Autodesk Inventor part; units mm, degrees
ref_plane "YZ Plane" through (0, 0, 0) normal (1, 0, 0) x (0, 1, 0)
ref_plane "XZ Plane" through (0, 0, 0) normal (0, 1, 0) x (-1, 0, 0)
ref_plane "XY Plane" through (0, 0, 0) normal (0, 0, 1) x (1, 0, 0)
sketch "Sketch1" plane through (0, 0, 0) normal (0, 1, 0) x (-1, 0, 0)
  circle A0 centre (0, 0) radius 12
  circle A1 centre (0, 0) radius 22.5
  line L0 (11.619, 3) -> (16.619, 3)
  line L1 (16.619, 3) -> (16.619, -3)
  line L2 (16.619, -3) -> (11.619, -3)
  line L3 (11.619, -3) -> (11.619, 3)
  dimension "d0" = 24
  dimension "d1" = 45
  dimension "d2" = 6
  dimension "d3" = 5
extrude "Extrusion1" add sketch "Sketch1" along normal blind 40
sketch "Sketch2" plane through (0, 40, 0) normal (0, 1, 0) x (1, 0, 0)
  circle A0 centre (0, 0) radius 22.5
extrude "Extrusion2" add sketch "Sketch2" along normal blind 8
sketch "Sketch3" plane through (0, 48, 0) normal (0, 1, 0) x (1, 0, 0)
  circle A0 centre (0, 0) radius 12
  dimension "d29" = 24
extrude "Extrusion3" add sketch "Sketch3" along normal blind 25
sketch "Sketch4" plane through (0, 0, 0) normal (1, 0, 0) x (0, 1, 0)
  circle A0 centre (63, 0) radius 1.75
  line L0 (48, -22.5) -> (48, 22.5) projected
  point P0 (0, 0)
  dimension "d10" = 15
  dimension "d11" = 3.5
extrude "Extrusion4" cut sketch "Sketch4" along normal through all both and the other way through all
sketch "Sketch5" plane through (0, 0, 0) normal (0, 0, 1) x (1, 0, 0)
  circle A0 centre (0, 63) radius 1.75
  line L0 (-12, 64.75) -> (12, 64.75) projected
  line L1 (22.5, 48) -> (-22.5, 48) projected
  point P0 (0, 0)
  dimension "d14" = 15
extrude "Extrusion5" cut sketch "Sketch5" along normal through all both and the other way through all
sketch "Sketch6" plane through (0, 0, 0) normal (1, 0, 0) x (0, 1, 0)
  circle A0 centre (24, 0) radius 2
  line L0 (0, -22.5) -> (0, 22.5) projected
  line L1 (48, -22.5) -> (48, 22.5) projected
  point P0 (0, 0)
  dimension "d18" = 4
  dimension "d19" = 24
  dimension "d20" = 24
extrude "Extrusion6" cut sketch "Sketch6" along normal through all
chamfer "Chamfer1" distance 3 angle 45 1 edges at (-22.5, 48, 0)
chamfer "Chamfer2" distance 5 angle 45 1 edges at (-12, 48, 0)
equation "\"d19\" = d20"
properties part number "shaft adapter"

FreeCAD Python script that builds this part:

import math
import FreeCAD as App
import Part
import Sketcher

V = App.Vector
Q = App.Units.Quantity


def edges_at(feature, points):
    """Names of the edges that pass closest to the given points."""
    edges = feature.Shape.Edges
    near = lambda p: min(range(len(edges)), key=lambda i: edges[i].distToShape(Part.Vertex(*p))[0])
    return sorted({f"Edge{near(p) + 1}" for p in points})

doc = App.newDocument("Part")
params = doc.addObject("Spreadsheet::Sheet", "Params")
for row, (alias, value) in enumerate([
    ("sketch1_diameter", "45 mm"),
    ("sketch1_radius", "12 mm"),
    ("sketch1_width", "5 mm"),
    ("sketch1_height", "6 mm"),
    ("pad1_length", "40 mm"),
    ("sketch2_diameter", "45 mm"),
    ("pad2_length", "8 mm"),
    ("sketch3_diameter", "24 mm"),
    ("pad3_length", "25 mm"),
    ("sketch4_diameter", "3.5 mm"),
    ("sketch5_diameter", "3.5 mm"),
    ("sketch6_diameter", "4 mm"),
    ("chamfer_size", "3 mm"),
    ("chamfer2_size", "5 mm"),
], start=1):
    params.set(f"A{row}", alias)
    params.set(f"B{row}", "=" + value)
    params.setAlias(f"B{row}", alias)

body = doc.addObject("PartDesign::Body", "Body")

# Sketch on XZ plane
sketch1 = body.newObject("Sketcher::SketchObject", "Sketch")
sketch1.AttachmentSupport = (doc.getObject("XZ_Plane"), [""])
sketch1.MapMode = "FlatFace"
sketch1.addGeometry(Part.Circle(V(0, 0, 0), V(0, 0, 1), 22), False)
sketch1.addGeometry(Part.ArcOfCircle(Part.Circle(V(0, 0, 0), V(0, 0, 1), 12), math.radians(-166), math.radians(166)), False)
sketch1.addGeometry(Part.LineSegment(V(-12, 3, 0), V(-17, 3, 0)), False)
sketch1.addGeometry(Part.LineSegment(V(-17, 3, 0), V(-17, -3, 0)), False)
sketch1.addGeometry(Part.LineSegment(V(-17, -3, 0), V(-12, -3, 0)), False)
sketch1.addConstraint(Sketcher.Constraint("Coincident", 1, 2, 2, 1))
sketch1.addConstraint(Sketcher.Constraint("Coincident", 2, 2, 3, 1))
sketch1.addConstraint(Sketcher.Constraint("Coincident", 3, 2, 4, 1))
sketch1.addConstraint(Sketcher.Constraint("Coincident", 4, 2, 1, 1))
sketch1.addConstraint(Sketcher.Constraint("Horizontal", 2))
sketch1.addConstraint(Sketcher.Constraint("Vertical", 3))
sketch1.addConstraint(Sketcher.Constraint("Horizontal", 4))
sketch1.addConstraint(Sketcher.Constraint("Coincident", 0, 3, -1, 1))
sketch1.addConstraint(Sketcher.Constraint("Coincident", 1, 3, -1, 1))
sketch1.addConstraint(Sketcher.Constraint("Vertical", 1, 2, 4, 2))
sketch1.addConstraint(Sketcher.Constraint("Diameter", 0, Q("45 mm")))
sketch1.addConstraint(Sketcher.Constraint("Radius", 1, Q("12 mm")))
sketch1.addConstraint(Sketcher.Constraint("DistanceX", 2, 2, 2, 1, Q("5 mm")))
sketch1.addConstraint(Sketcher.Constraint("DistanceY", 3, 2, 3, 1, Q("6 mm")))
sketch1.setExpression("Constraints[10]", "Params.sketch1_diameter")
sketch1.setExpression("Constraints[11]", "Params.sketch1_radius")
sketch1.setExpression("Constraints[12]", "Params.sketch1_width")
sketch1.setExpression("Constraints[13]", "Params.sketch1_height")
pad1 = body.newObject("PartDesign::Pad", "Pad")
pad1.Profile = sketch1
pad1.setExpression("Length", "Params.pad1_length")
pad1.Reversed = True

# Sketch on XZ plane
sketch2 = body.newObject("Sketcher::SketchObject", "Sketch001")
sketch2.AttachmentSupport = (doc.getObject("XZ_Plane"), [""])
sketch2.MapMode = "FlatFace"
sketch2.AttachmentOffset = App.Placement(V(0, 0, -40), App.Rotation())
sketch2.addGeometry(Part.Circle(V(0, 0, 0), V(0, 0, 1), 22), False)
sketch2.addConstraint(Sketcher.Constraint("Coincident", 0, 3, -1, 1))
sketch2.addConstraint(Sketcher.Constraint("Diameter", 0, Q("45 mm")))
sketch2.setExpression("Constraints[1]", "Params.sketch2_diameter")
pad2 = body.newObject("PartDesign::Pad", "Pad001")
pad2.Profile = sketch2
pad2.setExpression("Length", "Params.pad2_length")
pad2.Reversed = True

# Sketch on XZ plane
sketch3 = body.newObject("Sketcher::SketchObject", "Sketch002")
sketch3.AttachmentSupport = (doc.getObject("XZ_Plane"), [""])
sketch3.MapMode = "FlatFace"
sketch3.AttachmentOffset = App.Placement(V(0, 0, -48), App.Rotation())
sketch3.addGeometry(Part.Circle(V(0, 0, 0), V(0, 0, 1), 12), False)
sketch3.addConstraint(Sketcher.Constraint("Coincident", 0, 3, -1, 1))
sketch3.addConstraint(Sketcher.Constraint("Diameter", 0, Q("24 mm")))
sketch3.setExpression("Constraints[1]", "Params.sketch3_diameter")
pad3 = body.newObject("PartDesign::Pad", "Pad002")
pad3.Profile = sketch3
pad3.setExpression("Length", "Params.pad3_length")
pad3.Reversed = True

# Sketch on YZ plane
sketch4 = body.newObject("Sketcher::SketchObject", "Sketch003")
sketch4.AttachmentSupport = (doc.getObject("YZ_Plane"), [""])
sketch4.MapMode = "FlatFace"
sketch4.addGeometry(Part.Circle(V(63, 0, 0), V(0, 0, 1), 1.8), False)
sketch4.addConstraint(Sketcher.Constraint("PointOnObject", 0, 3, -1))
sketch4.addConstraint(Sketcher.Constraint("Diameter", 0, Q("3.5 mm")))
sketch4.addConstraint(Sketcher.Constraint("DistanceX", -1, 1, 0, 3, Q("63 mm")))
sketch4.setExpression("Constraints[1]", "Params.sketch4_diameter")
pocket1 = body.newObject("PartDesign::Pocket", "Pocket")
pocket1.Profile = sketch4
pocket1.Type = "ThroughAll"
pocket1.Midplane = True

# Sketch on XY plane
sketch5 = body.newObject("Sketcher::SketchObject", "Sketch004")
sketch5.AttachmentSupport = (doc.getObject("XY_Plane"), [""])
sketch5.MapMode = "FlatFace"
sketch5.addGeometry(Part.Circle(V(0, 63, 0), V(0, 0, 1), 1.8), False)
sketch5.addConstraint(Sketcher.Constraint("PointOnObject", 0, 3, -2))
sketch5.addConstraint(Sketcher.Constraint("Diameter", 0, Q("3.5 mm")))
sketch5.addConstraint(Sketcher.Constraint("DistanceY", -1, 1, 0, 3, Q("63 mm")))
sketch5.setExpression("Constraints[1]", "Params.sketch5_diameter")
pocket2 = body.newObject("PartDesign::Pocket", "Pocket001")
pocket2.Profile = sketch5
pocket2.Type = "ThroughAll"
pocket2.Midplane = True

# Sketch on YZ plane
sketch6 = body.newObject("Sketcher::SketchObject", "Sketch005")
sketch6.AttachmentSupport = (doc.getObject("YZ_Plane"), [""])
sketch6.MapMode = "FlatFace"
sketch6.addGeometry(Part.Circle(V(24, 0, 0), V(0, 0, 1), 2), False)
sketch6.addConstraint(Sketcher.Constraint("PointOnObject", 0, 3, -1))
sketch6.addConstraint(Sketcher.Constraint("Diameter", 0, Q("4 mm")))
sketch6.addConstraint(Sketcher.Constraint("DistanceX", -1, 1, 0, 3, Q("24 mm")))
sketch6.setExpression("Constraints[1]", "Params.sketch6_diameter")
pocket3 = body.newObject("PartDesign::Pocket", "Pocket002")
pocket3.Profile = sketch6
pocket3.Type = "ThroughAll"
pocket3.Reversed = True
doc.recompute()

chamfer = body.newObject("PartDesign::Chamfer", "Chamfer")
chamfer.Base = (pocket3, edges_at(pocket3, [(-22.5, 48, 0)]))
chamfer.setExpression("Size", "Params.chamfer_size")
doc.recompute()

chamfer2 = body.newObject("PartDesign::Chamfer", "Chamfer001")
chamfer2.Base = (chamfer, edges_at(chamfer, [(-12, 48, 0)]))
chamfer2.setExpression("Size", "Params.chamfer2_size")

doc.recompute()
